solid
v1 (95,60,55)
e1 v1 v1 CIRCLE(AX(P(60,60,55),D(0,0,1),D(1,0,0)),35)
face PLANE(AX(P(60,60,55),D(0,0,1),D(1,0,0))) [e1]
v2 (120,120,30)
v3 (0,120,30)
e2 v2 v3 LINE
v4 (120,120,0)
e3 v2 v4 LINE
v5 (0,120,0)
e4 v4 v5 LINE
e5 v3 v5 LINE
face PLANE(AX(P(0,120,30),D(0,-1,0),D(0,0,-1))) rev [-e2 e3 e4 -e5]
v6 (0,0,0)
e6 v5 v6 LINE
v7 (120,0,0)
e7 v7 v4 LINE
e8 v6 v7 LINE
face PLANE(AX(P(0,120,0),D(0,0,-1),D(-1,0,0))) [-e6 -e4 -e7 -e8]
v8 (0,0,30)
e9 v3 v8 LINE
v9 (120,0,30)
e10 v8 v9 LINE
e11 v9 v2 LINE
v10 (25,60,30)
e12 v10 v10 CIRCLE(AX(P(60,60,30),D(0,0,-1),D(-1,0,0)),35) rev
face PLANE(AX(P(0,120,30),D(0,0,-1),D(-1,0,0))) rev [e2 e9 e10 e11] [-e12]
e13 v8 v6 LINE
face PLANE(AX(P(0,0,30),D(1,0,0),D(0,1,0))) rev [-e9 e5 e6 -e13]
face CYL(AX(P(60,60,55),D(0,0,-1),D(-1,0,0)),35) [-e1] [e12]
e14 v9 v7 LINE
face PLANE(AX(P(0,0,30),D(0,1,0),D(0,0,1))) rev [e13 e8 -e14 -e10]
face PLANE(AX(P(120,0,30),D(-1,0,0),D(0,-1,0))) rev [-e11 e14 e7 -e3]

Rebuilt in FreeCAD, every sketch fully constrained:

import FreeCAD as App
import Part
import Sketcher

V = App.Vector
Q = App.Units.Quantity

doc = App.newDocument("Part")
body = doc.addObject("PartDesign::Body", "Body")

# Sketch on XY plane
sketch1 = body.newObject("Sketcher::SketchObject", "Sketch")
sketch1.AttachmentSupport = (doc.getObject("XY_Plane"), [""])
sketch1.MapMode = "FlatFace"
sketch1.addGeometry(Part.LineSegment(V(0, 120, 0), V(0, 0, 0)), False)
sketch1.addGeometry(Part.LineSegment(V(0, 0, 0), V(120, 0, 0)), False)
sketch1.addGeometry(Part.LineSegment(V(120, 0, 0), V(120, 120, 0)), False)
sketch1.addGeometry(Part.LineSegment(V(120, 120, 0), V(0, 120, 0)), False)
sketch1.addConstraint(Sketcher.Constraint("Coincident", 0, 2, 1, 1))
sketch1.addConstraint(Sketcher.Constraint("Coincident", 1, 2, 2, 1))
sketch1.addConstraint(Sketcher.Constraint("Coincident", 2, 2, 3, 1))
sketch1.addConstraint(Sketcher.Constraint("Coincident", 3, 2, 0, 1))
sketch1.addConstraint(Sketcher.Constraint("Vertical", 0))
sketch1.addConstraint(Sketcher.Constraint("Horizontal", 1))
sketch1.addConstraint(Sketcher.Constraint("Vertical", 2))
sketch1.addConstraint(Sketcher.Constraint("Horizontal", 3))
sketch1.addConstraint(Sketcher.Constraint("Coincident", 0, 2, -1, 1))
sketch1.addConstraint(Sketcher.Constraint("Equal", 3, 0))
sketch1.addConstraint(Sketcher.Constraint("DistanceX", 1, 1, 1, 2, Q("120 mm")))
pad1 = body.newObject("PartDesign::Pad", "Pad")
pad1.Profile = sketch1
pad1.Length = 30

# Sketch on XY plane
sketch2 = body.newObject("Sketcher::SketchObject", "Sketch001")
sketch2.AttachmentSupport = (doc.getObject("XY_Plane"), [""])
sketch2.MapMode = "FlatFace"
sketch2.AttachmentOffset = App.Placement(V(0, 0, 30), App.Rotation())
sketch2.addGeometry(Part.Circle(V(60, 60, 0), V(0, 0, 1), 35), False)
sketch2.addConstraint(Sketcher.Constraint("Diameter", 0, Q("70 mm")))
sketch2.addConstraint(Sketcher.Constraint("DistanceX", -1, 1, 0, 3, Q("60 mm")))
sketch2.addConstraint(Sketcher.Constraint("DistanceY", -1, 1, 0, 3, Q("60 mm")))
pad2 = body.newObject("PartDesign::Pad", "Pad001")
pad2.Profile = sketch2
pad2.Length = 25

doc.recompute()
